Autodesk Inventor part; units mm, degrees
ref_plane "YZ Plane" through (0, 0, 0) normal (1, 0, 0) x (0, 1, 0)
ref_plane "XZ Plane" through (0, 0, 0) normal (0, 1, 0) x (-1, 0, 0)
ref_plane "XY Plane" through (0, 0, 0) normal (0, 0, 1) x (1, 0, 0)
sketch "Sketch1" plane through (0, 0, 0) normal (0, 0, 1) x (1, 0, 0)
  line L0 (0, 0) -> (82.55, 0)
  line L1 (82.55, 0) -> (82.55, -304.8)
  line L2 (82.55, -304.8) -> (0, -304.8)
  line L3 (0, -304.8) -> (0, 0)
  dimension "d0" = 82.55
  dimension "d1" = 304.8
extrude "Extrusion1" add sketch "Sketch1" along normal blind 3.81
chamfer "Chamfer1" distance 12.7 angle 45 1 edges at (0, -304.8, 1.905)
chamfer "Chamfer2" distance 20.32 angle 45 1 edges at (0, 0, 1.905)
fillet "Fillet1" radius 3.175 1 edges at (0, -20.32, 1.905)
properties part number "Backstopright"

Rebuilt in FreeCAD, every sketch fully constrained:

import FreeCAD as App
import Part
import Sketcher

V = App.Vector
Q = App.Units.Quantity


def edges_at(feature, points):
    """Names of the edges that pass closest to the given points."""
    edges = feature.Shape.Edges
    near = lambda p: min(range(len(edges)), key=lambda i: edges[i].distToShape(Part.Vertex(*p))[0])
    return sorted({f"Edge{near(p) + 1}" for p in points})

doc = App.newDocument("Part")
params = doc.addObject("Spreadsheet::Sheet", "Params")
for row, (alias, value) in enumerate([
    ("sketch1_height", "12 in"),
    ("sketch1_width", "3.25 in"),
    ("pad1_length", "0.15 in"),
    ("chamfer_size", "0.5 in"),
    ("chamfer2_size", "0.8 in"),
    ("fillet_radius", "0.125 in"),
], start=1):
    params.set(f"A{row}", alias)
    params.set(f"B{row}", "=" + value)
    params.setAlias(f"B{row}", alias)

body = doc.addObject("PartDesign::Body", "Body")

# Sketch on XY plane
sketch1 = doc.addObject("Sketcher::SketchObject", "Sketch")
body.addObject(sketch1)
sketch1.AttachmentSupport = (doc.XY_Plane, [""])
sketch1.MapMode = "FlatFace"
sketch1.addGeometry(Part.LineSegment(V(83, 0, 0), V(0, 0, 0)), False)
sketch1.addGeometry(Part.LineSegment(V(0, 0, 0), V(0, -305, 0)), False)
sketch1.addGeometry(Part.LineSegment(V(0, -305, 0), V(83, -305, 0)), False)
sketch1.addGeometry(Part.LineSegment(V(83, -305, 0), V(83, 0, 0)), False)
sketch1.addConstraint(Sketcher.Constraint("Coincident", 0, 2, 1, 1))
sketch1.addConstraint(Sketcher.Constraint("Coincident", 1, 2, 2, 1))
sketch1.addConstraint(Sketcher.Constraint("Coincident", 2, 2, 3, 1))
sketch1.addConstraint(Sketcher.Constraint("Coincident", 3, 2, 0, 1))
sketch1.addConstraint(Sketcher.Constraint("Horizontal", 0))
sketch1.addConstraint(Sketcher.Constraint("Vertical", 1))
sketch1.addConstraint(Sketcher.Constraint("Horizontal", 2))
sketch1.addConstraint(Sketcher.Constraint("Vertical", 3))
sketch1.addConstraint(Sketcher.Constraint("Coincident", 0, 2, -1, 1))
sketch1.addConstraint(Sketcher.Constraint("DistanceY", 1, 2, 1, 1, Q("12 in")))
sketch1.addConstraint(Sketcher.Constraint("DistanceX", 0, 2, 0, 1, Q("3.25 in")))
sketch1.setExpression("Constraints[9]", "Params.sketch1_height")
sketch1.setExpression("Constraints[10]", "Params.sketch1_width")
pad1 = doc.addObject("PartDesign::Pad", "Pad")
body.addObject(pad1)
pad1.Profile = sketch1
pad1.setExpression("Length", "Params.pad1_length")
doc.recompute()

chamfer = doc.addObject("PartDesign::Chamfer", "Chamfer")
body.addObject(chamfer)
chamfer.Base = (pad1, edges_at(pad1, [(0, -304.8, 1.905)]))
chamfer.setExpression("Size", "Params.chamfer_size")
doc.recompute()

chamfer2 = doc.addObject("PartDesign::Chamfer", "Chamfer001")
body.addObject(chamfer2)
chamfer2.Base = (chamfer, edges_at(chamfer, [(0, 0, 1.905)]))
chamfer2.setExpression("Size", "Params.chamfer2_size")
doc.recompute()

fillet = doc.addObject("PartDesign::Fillet", "Fillet")
body.addObject(fillet)
fillet.Base = (chamfer2, edges_at(chamfer2, [(0, -20.32, 1.905)]))
fillet.setExpression("Radius", "Params.fillet_radius")

doc.recompute()
